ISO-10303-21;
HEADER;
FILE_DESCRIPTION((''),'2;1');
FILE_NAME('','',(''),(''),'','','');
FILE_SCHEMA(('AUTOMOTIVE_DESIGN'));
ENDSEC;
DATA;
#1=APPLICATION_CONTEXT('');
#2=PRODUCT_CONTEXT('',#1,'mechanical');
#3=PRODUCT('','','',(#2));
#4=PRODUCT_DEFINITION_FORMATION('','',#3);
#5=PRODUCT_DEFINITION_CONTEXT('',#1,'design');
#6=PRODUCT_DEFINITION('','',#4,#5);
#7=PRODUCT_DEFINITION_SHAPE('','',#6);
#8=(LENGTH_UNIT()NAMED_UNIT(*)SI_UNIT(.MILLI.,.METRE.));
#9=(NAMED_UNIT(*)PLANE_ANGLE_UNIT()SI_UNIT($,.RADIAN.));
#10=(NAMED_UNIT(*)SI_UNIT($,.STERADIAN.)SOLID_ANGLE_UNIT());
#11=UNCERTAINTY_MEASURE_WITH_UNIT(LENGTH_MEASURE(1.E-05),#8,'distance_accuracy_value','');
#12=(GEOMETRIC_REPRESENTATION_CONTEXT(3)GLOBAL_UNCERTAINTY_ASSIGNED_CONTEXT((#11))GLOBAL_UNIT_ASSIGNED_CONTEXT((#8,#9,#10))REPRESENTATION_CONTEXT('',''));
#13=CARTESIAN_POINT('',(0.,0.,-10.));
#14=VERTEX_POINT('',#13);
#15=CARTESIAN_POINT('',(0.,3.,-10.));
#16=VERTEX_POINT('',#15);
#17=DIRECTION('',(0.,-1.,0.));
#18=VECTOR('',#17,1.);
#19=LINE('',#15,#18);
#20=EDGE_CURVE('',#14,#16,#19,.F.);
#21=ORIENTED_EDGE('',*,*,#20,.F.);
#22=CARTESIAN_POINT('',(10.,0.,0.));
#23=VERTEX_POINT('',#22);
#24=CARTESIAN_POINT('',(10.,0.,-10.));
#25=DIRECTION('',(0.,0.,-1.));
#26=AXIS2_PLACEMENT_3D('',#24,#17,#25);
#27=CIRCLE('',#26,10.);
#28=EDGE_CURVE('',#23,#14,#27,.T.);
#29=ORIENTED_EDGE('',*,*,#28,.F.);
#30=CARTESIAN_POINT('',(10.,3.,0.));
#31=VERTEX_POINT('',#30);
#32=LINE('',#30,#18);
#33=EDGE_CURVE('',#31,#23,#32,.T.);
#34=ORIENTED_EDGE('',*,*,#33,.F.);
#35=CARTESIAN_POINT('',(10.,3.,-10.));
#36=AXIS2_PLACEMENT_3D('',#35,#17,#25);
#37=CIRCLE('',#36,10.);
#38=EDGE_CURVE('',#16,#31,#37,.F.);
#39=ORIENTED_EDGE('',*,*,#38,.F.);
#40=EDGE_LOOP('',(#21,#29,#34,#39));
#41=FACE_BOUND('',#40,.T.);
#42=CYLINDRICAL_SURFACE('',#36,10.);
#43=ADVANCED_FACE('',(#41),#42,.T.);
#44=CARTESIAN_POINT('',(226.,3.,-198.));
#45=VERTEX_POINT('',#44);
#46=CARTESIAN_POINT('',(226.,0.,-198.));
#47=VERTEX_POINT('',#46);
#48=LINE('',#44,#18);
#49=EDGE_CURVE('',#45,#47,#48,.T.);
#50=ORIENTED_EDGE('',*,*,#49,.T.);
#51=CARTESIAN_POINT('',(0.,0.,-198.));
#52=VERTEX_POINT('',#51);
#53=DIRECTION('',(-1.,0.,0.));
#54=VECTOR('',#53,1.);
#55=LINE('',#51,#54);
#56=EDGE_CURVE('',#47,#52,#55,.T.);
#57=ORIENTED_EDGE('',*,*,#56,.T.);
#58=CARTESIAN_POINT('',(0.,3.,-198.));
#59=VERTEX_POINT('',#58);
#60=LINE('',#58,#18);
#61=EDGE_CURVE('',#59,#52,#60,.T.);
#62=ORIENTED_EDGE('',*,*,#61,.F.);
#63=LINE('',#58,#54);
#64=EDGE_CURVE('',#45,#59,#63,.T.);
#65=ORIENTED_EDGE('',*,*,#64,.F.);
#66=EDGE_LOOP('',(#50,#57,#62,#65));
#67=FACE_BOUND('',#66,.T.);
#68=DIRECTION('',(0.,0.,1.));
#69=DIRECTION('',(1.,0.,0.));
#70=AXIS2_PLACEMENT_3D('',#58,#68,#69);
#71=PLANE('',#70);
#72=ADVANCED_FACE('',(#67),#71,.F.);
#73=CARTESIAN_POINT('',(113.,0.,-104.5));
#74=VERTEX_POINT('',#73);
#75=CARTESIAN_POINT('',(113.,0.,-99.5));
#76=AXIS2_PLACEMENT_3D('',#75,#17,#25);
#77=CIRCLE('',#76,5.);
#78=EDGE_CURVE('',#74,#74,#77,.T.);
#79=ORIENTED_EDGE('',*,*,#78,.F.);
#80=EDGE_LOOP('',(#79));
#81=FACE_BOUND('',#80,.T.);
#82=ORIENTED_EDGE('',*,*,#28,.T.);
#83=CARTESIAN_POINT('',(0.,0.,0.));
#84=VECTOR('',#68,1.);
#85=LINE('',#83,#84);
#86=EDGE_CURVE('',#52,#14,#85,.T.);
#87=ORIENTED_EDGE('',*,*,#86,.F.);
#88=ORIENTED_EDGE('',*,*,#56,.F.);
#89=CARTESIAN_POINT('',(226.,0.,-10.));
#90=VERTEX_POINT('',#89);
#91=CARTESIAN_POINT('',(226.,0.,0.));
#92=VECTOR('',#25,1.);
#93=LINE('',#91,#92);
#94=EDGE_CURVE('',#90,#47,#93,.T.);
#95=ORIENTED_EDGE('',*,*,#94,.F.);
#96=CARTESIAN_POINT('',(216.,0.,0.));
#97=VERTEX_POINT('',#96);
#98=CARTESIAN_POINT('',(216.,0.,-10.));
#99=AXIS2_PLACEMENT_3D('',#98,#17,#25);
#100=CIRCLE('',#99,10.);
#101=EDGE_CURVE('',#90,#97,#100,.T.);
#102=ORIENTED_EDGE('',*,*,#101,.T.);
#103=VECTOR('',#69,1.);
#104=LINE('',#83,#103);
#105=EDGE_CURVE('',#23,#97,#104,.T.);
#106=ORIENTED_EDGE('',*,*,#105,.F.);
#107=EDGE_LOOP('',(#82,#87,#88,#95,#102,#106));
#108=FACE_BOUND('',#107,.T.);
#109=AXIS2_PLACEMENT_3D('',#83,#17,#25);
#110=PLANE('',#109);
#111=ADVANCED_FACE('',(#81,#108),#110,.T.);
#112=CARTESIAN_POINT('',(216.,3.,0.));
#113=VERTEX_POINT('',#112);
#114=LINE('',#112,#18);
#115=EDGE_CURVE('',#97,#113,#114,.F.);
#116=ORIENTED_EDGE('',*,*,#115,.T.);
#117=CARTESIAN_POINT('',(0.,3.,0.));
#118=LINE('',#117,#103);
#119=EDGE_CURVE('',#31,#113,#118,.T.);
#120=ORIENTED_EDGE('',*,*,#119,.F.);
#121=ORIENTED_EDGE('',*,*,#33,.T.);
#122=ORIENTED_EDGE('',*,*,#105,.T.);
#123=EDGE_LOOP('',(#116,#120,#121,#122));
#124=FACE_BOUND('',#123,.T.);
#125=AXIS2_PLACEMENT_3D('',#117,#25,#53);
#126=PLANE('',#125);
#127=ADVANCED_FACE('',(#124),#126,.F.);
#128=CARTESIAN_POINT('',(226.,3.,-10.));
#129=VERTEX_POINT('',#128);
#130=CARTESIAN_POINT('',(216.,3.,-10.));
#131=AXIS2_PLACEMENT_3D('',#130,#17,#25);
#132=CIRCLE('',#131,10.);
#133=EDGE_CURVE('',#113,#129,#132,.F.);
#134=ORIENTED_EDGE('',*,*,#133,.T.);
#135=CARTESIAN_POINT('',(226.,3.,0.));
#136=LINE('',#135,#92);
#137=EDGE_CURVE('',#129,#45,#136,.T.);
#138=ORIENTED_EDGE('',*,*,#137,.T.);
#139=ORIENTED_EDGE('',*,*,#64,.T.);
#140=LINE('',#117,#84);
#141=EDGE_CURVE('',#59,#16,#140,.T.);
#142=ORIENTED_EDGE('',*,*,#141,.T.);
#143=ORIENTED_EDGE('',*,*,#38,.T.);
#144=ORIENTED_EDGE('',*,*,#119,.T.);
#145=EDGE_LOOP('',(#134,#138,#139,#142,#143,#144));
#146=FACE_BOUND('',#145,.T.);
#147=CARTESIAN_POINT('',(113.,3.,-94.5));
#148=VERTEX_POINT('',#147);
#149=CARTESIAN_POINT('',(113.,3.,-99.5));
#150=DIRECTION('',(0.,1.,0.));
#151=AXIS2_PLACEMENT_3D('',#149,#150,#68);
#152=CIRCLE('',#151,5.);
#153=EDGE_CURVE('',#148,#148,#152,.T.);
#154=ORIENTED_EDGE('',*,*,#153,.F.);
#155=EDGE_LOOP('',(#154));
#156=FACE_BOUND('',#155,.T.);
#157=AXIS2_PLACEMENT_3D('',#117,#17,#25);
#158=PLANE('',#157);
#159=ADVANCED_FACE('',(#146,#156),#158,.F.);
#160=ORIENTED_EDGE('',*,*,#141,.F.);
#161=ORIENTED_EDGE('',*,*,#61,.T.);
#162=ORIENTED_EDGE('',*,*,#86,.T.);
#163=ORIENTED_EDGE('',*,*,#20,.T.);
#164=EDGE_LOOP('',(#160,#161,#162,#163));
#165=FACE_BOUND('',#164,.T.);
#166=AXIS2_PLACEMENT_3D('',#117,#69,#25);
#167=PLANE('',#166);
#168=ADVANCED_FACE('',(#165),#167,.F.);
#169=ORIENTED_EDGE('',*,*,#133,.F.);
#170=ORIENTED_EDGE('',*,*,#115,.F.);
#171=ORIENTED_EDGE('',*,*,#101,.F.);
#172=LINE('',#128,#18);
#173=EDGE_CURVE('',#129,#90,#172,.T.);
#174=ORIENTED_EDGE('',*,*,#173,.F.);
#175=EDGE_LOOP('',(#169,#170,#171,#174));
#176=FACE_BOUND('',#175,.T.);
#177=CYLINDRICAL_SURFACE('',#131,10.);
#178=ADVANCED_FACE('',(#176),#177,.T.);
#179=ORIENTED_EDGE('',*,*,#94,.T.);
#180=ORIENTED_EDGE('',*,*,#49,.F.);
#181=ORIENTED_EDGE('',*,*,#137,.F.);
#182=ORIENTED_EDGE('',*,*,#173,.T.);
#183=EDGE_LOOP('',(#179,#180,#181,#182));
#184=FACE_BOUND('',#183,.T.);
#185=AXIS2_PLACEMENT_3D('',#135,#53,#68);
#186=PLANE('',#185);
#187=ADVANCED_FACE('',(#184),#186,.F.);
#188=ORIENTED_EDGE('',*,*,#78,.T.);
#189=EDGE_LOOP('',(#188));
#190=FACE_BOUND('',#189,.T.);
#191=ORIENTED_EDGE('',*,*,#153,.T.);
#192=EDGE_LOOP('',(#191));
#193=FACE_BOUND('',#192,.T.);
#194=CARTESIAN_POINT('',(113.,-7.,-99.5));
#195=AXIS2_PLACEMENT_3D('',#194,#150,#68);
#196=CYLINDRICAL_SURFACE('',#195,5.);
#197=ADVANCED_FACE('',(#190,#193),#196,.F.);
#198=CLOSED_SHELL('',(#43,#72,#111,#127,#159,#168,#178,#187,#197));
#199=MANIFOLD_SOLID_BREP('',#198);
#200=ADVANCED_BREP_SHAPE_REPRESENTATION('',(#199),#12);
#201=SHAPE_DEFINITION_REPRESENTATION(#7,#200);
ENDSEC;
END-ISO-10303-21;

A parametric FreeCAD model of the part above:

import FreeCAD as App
import Part
import Sketcher

V = App.Vector
Q = App.Units.Quantity


def edges_at(feature, points):
    """Names of the edges that pass closest to the given points."""
    edges = feature.Shape.Edges
    near = lambda p: min(range(len(edges)), key=lambda i: edges[i].distToShape(Part.Vertex(*p))[0])
    return sorted({f"Edge{near(p) + 1}" for p in points})


def add_polygon(sketch, points):
    """Adds a closed chain of lines whose ends are joined by coincident constraints."""
    first, n = sketch.GeometryCount, len(points)
    for a, b in zip(points, points[1:] + points[:1]):
        sketch.addGeometry(Part.LineSegment(App.Vector(*a, 0), App.Vector(*b, 0)), False)
    for i in range(n):
        sketch.addConstraint(Sketcher.Constraint("Coincident", first + i, 2, first + (i + 1) % n, 1))

doc = App.newDocument("Part")
body = doc.addObject("PartDesign::Body", "Body")

# Sketch on XZ plane
sketch1 = body.newObject("Sketcher::SketchObject", "Sketch")
sketch1.AttachmentSupport = (doc.getObject("XZ_Plane"), [""])
sketch1.MapMode = "FlatFace"
add_polygon(sketch1, [(0, -198), (0, 0), (226, 0), (226, -198)])  # lines 0-3
sketch1.addConstraint([
    Sketcher.Constraint("Vertical", 0),
    Sketcher.Constraint("Horizontal", 1),
    Sketcher.Constraint("Vertical", 2),
    Sketcher.Constraint("Horizontal", 3),
    Sketcher.Constraint("Coincident", 0, 2, -1, 1),
    Sketcher.Constraint("DistanceX", 1, 1, 1, 2, Q("226 mm")),
    Sketcher.Constraint("DistanceY", 0, 1, 0, 2, Q("198 mm")),
])
pad1 = body.newObject("PartDesign::Pad", "Pad")
pad1.Profile = sketch1
pad1.Length = 3
pad1.Reversed = True

# Sketch on XZ plane
sketch2 = body.newObject("Sketcher::SketchObject", "Sketch001")
sketch2.AttachmentSupport = (doc.getObject("XZ_Plane"), [""])
sketch2.MapMode = "FlatFace"
sketch2.AttachmentOffset = App.Placement(V(0, 0, -3), App.Rotation())
sketch2.addGeometry(Part.Circle(V(113, -99.5, 0), V(0, 0, 1), 5), False)
sketch2.addConstraint([
    Sketcher.Constraint("Diameter", 0, Q("10 mm")),
    Sketcher.Constraint("DistanceX", -1, 1, 0, 3, Q("113 mm")),
    Sketcher.Constraint("DistanceY", 0, 3, -1, 1, Q("99.5 mm")),
])
pocket1 = body.newObject("PartDesign::Pocket", "Pocket")
pocket1.Profile = sketch2
pocket1.Length = 10
pocket1.Reversed = True
doc.recompute()

fillet = body.newObject("PartDesign::Fillet", "Fillet")
fillet.Base = (pocket1, edges_at(pocket1, [(226, 1.5, 0), (0, 1.5, 0)]))
fillet.Radius = 10

doc.recompute()
